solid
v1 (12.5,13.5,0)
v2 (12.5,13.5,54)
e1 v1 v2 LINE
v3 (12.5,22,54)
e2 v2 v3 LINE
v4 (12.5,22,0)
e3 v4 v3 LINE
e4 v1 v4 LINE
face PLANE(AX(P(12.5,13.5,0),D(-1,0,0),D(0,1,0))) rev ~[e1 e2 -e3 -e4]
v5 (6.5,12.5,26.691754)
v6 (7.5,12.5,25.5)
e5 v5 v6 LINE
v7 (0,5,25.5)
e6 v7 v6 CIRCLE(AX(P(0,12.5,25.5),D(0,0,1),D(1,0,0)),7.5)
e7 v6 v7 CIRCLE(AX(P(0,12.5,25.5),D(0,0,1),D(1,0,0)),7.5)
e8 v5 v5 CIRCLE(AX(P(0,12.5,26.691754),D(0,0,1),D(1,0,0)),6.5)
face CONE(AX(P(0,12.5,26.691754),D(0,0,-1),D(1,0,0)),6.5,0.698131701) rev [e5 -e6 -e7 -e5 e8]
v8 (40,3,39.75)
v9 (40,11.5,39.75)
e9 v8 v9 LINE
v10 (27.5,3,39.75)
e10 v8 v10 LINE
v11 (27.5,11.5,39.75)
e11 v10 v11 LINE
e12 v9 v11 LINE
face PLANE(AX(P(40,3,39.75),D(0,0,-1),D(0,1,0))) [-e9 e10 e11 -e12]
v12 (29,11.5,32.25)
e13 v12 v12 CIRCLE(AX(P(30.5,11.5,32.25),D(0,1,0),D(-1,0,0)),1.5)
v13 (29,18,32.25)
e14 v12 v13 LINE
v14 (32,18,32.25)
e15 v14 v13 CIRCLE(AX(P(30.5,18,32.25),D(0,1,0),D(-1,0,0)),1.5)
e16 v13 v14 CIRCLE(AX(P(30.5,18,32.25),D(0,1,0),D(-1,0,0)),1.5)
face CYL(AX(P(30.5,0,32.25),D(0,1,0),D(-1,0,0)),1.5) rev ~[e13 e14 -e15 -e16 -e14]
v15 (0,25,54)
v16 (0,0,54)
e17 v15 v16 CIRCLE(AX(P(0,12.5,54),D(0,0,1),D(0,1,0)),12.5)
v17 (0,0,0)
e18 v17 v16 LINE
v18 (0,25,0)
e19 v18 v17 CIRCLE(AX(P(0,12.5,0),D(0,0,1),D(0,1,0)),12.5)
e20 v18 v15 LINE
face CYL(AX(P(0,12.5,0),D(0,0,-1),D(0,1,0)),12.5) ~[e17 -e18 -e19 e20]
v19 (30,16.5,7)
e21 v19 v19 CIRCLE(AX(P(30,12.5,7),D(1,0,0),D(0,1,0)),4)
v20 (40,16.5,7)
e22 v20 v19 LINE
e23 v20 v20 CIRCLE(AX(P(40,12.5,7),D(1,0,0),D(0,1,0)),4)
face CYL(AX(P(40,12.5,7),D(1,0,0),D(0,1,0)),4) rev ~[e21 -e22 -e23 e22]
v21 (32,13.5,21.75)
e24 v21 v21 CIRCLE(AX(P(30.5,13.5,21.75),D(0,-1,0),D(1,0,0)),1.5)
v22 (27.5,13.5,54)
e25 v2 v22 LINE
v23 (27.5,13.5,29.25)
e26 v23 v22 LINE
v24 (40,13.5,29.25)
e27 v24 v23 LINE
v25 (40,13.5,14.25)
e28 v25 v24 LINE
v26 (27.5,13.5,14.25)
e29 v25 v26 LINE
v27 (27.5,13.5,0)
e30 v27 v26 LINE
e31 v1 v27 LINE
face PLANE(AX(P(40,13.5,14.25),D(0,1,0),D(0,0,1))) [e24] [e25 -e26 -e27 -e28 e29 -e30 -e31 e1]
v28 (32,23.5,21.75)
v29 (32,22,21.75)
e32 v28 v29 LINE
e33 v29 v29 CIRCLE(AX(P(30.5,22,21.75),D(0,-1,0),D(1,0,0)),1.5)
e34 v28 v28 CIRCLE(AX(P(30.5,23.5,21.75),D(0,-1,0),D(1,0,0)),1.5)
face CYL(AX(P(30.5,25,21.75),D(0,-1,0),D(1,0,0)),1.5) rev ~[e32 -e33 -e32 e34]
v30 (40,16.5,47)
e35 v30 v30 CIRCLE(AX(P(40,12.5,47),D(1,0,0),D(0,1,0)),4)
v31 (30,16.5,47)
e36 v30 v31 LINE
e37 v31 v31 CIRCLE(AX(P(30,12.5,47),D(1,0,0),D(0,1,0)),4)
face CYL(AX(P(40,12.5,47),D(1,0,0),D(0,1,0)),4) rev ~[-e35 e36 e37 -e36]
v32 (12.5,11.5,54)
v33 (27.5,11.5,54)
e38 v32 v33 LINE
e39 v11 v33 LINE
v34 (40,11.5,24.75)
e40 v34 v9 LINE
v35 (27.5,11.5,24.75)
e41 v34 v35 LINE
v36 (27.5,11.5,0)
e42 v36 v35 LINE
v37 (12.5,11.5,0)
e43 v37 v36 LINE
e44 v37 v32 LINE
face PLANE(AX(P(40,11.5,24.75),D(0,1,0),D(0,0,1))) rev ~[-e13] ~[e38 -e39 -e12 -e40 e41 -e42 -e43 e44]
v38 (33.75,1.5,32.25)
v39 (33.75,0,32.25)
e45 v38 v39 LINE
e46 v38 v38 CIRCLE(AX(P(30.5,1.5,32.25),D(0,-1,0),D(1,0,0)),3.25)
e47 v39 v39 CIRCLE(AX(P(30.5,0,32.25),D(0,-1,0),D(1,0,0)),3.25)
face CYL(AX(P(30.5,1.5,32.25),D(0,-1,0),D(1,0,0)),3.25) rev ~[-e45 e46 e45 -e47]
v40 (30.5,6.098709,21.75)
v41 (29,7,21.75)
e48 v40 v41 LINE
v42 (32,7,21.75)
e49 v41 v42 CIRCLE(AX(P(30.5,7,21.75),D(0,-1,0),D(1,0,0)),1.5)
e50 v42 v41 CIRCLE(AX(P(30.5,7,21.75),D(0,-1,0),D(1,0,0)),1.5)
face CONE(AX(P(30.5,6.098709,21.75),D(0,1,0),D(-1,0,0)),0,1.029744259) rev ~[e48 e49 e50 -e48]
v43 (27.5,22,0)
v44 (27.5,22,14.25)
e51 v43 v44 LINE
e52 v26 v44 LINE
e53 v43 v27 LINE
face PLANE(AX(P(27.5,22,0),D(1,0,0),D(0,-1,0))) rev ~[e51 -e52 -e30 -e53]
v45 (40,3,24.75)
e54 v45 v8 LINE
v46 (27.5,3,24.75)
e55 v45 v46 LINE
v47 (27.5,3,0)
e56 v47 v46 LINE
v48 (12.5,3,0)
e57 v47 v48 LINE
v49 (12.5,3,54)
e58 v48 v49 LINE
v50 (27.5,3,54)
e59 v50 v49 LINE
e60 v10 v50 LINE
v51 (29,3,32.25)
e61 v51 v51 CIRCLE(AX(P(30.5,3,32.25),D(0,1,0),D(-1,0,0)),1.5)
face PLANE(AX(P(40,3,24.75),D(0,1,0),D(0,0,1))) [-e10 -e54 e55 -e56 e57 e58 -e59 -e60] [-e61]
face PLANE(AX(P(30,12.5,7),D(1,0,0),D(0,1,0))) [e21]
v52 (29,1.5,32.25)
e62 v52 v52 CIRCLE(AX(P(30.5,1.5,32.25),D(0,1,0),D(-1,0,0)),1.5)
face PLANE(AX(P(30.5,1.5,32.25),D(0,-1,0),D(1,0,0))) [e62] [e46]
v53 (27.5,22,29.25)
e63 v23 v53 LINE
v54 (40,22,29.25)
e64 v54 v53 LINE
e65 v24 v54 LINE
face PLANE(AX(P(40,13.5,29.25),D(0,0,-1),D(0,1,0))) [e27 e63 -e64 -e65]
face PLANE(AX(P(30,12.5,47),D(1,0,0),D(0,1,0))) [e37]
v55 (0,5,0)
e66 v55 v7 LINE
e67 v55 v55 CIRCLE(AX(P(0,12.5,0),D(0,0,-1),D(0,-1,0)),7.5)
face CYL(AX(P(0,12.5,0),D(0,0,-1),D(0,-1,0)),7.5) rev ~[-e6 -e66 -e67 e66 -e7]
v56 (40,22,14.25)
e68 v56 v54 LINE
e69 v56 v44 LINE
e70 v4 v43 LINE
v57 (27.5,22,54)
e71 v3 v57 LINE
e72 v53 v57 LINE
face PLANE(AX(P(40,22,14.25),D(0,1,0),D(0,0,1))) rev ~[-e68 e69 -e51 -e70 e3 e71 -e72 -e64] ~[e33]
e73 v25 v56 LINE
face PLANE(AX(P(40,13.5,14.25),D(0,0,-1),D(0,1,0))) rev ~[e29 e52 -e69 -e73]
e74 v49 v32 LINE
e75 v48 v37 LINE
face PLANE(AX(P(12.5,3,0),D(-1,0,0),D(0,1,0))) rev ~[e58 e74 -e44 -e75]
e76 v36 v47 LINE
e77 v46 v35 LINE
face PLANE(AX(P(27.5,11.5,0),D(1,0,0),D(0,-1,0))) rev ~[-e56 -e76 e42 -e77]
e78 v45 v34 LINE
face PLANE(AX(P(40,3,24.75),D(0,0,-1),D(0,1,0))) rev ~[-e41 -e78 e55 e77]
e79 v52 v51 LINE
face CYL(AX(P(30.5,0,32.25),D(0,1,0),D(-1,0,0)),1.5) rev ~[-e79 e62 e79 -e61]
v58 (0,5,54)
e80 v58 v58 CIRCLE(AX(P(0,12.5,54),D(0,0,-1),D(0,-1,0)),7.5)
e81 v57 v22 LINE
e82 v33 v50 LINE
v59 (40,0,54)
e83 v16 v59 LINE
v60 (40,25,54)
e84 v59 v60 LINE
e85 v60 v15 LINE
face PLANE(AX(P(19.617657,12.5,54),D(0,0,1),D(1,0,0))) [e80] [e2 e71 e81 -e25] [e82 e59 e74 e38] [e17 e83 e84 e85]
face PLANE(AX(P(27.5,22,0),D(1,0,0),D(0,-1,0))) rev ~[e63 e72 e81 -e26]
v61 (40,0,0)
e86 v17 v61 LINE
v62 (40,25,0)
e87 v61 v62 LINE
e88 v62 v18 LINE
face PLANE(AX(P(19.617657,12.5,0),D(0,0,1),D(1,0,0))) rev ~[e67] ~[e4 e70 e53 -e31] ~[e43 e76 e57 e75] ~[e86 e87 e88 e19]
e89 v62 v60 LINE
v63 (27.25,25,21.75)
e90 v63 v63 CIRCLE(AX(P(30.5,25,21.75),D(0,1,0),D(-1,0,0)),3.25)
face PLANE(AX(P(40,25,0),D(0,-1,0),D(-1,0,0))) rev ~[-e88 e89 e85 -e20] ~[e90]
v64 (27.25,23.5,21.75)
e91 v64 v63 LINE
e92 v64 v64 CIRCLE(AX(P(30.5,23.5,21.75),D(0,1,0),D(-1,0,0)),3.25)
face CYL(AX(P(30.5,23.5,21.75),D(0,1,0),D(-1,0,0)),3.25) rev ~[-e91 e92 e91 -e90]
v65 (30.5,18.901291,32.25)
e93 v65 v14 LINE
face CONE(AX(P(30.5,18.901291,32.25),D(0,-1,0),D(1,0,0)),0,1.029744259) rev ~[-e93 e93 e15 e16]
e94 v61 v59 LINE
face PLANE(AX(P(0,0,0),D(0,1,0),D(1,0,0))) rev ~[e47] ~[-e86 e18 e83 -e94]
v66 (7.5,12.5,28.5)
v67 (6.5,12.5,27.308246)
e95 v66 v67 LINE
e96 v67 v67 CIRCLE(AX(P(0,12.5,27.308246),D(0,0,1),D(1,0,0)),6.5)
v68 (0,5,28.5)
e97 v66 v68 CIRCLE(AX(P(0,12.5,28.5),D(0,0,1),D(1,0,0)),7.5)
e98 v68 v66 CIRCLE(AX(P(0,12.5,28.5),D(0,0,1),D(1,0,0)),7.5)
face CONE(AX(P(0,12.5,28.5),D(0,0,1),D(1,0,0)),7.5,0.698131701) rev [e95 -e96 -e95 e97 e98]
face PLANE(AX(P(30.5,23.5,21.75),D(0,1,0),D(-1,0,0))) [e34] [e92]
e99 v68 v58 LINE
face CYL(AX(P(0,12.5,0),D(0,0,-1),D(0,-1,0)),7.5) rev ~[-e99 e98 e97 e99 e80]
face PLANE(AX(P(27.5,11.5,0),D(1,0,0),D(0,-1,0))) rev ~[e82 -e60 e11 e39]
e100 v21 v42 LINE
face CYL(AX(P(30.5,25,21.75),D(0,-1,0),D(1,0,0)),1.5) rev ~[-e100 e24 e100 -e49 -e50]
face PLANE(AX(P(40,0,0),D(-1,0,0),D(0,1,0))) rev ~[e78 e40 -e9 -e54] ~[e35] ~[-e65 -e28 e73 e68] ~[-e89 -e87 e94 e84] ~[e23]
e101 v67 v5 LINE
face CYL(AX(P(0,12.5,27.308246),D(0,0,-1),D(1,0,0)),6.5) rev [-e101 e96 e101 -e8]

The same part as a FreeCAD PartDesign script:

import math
import FreeCAD as App
import Part
import Sketcher
from FreeCAD import Vector
Q = App.Units.Quantity

doc = App.newDocument("Part")
params = doc.addObject("Spreadsheet::Sheet", "Params")
for row, (alias, value) in enumerate([
    ("sketch1_diameter", "15 mm"),
    ("sketch1_radius", "12.5 mm"),
    ("sketch1_width", "40 mm"),
    ("sketch1_width2", "15 mm"),
    ("sketch1_height", "8.5 mm"),
    ("pad1_length", "54 mm"),
    ("sketch2_height", "15 mm"),
    ("sketch2_width", "8.5 mm"),
    ("pocket1_length", "12.5 mm"),
    ("sketch3_diameter", "3 mm"),
    ("hole_diameter", "3 mm"),
    ("hole_depth", "18 mm"),
    ("hole_cbore_diameter", "6.5 mm"),
    ("hole_cbore_depth", "1.5 mm"),
    ("sketch4_diameter", "3 mm"),
    ("hole2_diameter", "3 mm"),
    ("hole2_depth", "18 mm"),
    ("hole2_cbore_diameter", "6.5 mm"),
    ("hole2_cbore_depth", "1.5 mm"),
    ("sketch5_diameter", "8 mm"),
    ("pocket2_length", "10 mm"),
    ("sketch6_height", "3 mm"),
    ("revolution_angle", "360 deg"),
], start=1):
    params.set(f"A{row}", alias)
    params.set(f"B{row}", "=" + value)
    params.setAlias(f"B{row}", alias)

body = doc.addObject("PartDesign::Body", "Body")

sketch1 = body.newObject("Sketcher::SketchObject", "Sketch")
sketch1.AttachmentSupport = (doc.getObject("XY_Plane"), [""])
sketch1.MapMode = "FlatFace"
sketch1.addGeometry(Part.LineSegment(Vector(0, 0, 0), Vector(40, 0, 0)), False)
sketch1.addGeometry(Part.LineSegment(Vector(40, 0, 0), Vector(40, 25, 0)), False)
sketch1.addGeometry(Part.LineSegment(Vector(40, 25, 0), Vector(0, 25, 0)), False)
sketch1.addGeometry(Part.ArcOfCircle(Part.Circle(Vector(0, 12, 0), Vector(0, 0, 1), 12), math.radians(90), math.radians(270)), False)
sketch1.addGeometry(Part.Circle(Vector(0, 12, 0), Vector(0, 0, 1), 8), False)
sketch1.addGeometry(Part.LineSegment(Vector(12, 3, 0), Vector(12, 12, 0)), False)
sketch1.addGeometry(Part.LineSegment(Vector(12, 12, 0), Vector(28, 12, 0)), False)
sketch1.addGeometry(Part.LineSegment(Vector(28, 12, 0), Vector(28, 3, 0)), False)
sketch1.addGeometry(Part.LineSegment(Vector(28, 3, 0), Vector(12, 3, 0)), False)
sketch1.addGeometry(Part.LineSegment(Vector(12, 14, 0), Vector(12, 22, 0)), False)
sketch1.addGeometry(Part.LineSegment(Vector(12, 22, 0), Vector(28, 22, 0)), False)
sketch1.addGeometry(Part.LineSegment(Vector(28, 22, 0), Vector(28, 14, 0)), False)
sketch1.addGeometry(Part.LineSegment(Vector(28, 14, 0), Vector(12, 14, 0)), False)
sketch1.addConstraint(Sketcher.Constraint("Coincident", 0, 2, 1, 1))
sketch1.addConstraint(Sketcher.Constraint("Coincident", 1, 2, 2, 1))
sketch1.addConstraint(Sketcher.Constraint("Tangent", 2, 2, 3, 1))
sketch1.addConstraint(Sketcher.Constraint("Tangent", 3, 2, 0, 1))
sketch1.addConstraint(Sketcher.Constraint("Coincident", 5, 2, 6, 1))
sketch1.addConstraint(Sketcher.Constraint("Coincident", 6, 2, 7, 1))
sketch1.addConstraint(Sketcher.Constraint("Coincident", 7, 2, 8, 1))
sketch1.addConstraint(Sketcher.Constraint("Coincident", 8, 2, 5, 1))
sketch1.addConstraint(Sketcher.Constraint("Coincident", 9, 2, 10, 1))
sketch1.addConstraint(Sketcher.Constraint("Coincident", 10, 2, 11, 1))
sketch1.addConstraint(Sketcher.Constraint("Coincident", 11, 2, 12, 1))
sketch1.addConstraint(Sketcher.Constraint("Coincident", 12, 2, 9, 1))
sketch1.addConstraint(Sketcher.Constraint("Horizontal", 0))
sketch1.addConstraint(Sketcher.Constraint("Vertical", 1))
sketch1.addConstraint(Sketcher.Constraint("Horizontal", 2))
sketch1.addConstraint(Sketcher.Constraint("Vertical", 5))
sketch1.addConstraint(Sketcher.Constraint("Horizontal", 6))
sketch1.addConstraint(Sketcher.Constraint("Vertical", 7))
sketch1.addConstraint(Sketcher.Constraint("Horizontal", 8))
sketch1.addConstraint(Sketcher.Constraint("Vertical", 9))
sketch1.addConstraint(Sketcher.Constraint("Horizontal", 10))
sketch1.addConstraint(Sketcher.Constraint("Vertical", 11))
sketch1.addConstraint(Sketcher.Constraint("Horizontal", 12))
sketch1.addConstraint(Sketcher.Constraint("Coincident", 3, 2, -1, 1))
sketch1.addConstraint(Sketcher.Constraint("Coincident", 4, 3, 3, 3))
sketch1.addConstraint(Sketcher.Constraint("Vertical", 8, 2, 9, 2))
sketch1.addConstraint(Sketcher.Constraint("Vertical", 7, 2, 10, 2))
sketch1.addConstraint(Sketcher.Constraint("Equal", 7, 9))
sketch1.addConstraint(Sketcher.Constraint("Diameter", 4, Q("15 mm")))
sketch1.addConstraint(Sketcher.Constraint("Radius", 3, Q("12.5 mm")))
sketch1.addConstraint(Sketcher.Constraint("DistanceX", 0, 1, 0, 2, Q("40 mm")))
sketch1.addConstraint(Sketcher.Constraint("DistanceX", 6, 1, 6, 2, Q("15 mm")))
sketch1.addConstraint(Sketcher.Constraint("DistanceY", 5, 1, 5, 2, Q("8.5 mm")))
sketch1.addConstraint(Sketcher.Constraint("DistanceY", -1, 1, 7, 2, Q("3 mm")))
sketch1.addConstraint(Sketcher.Constraint("DistanceY", -1, 1, 9, 2, Q("22 mm")))
sketch1.addConstraint(Sketcher.Constraint("DistanceX", -1, 1, 5, 2, Q("12.5 mm")))
sketch1.setExpression("Constraints[28]", "Params.sketch1_diameter")
sketch1.setExpression("Constraints[29]", "Params.sketch1_radius")
sketch1.setExpression("Constraints[30]", "Params.sketch1_width")
sketch1.setExpression("Constraints[31]", "Params.sketch1_width2")
sketch1.setExpression("Constraints[32]", "Params.sketch1_height")
pad1 = body.newObject("PartDesign::Pad", "Pad")
pad1.Profile = sketch1
pad1.setExpression("Length", "Params.pad1_length")

sketch2 = body.newObject("Sketcher::SketchObject", "Sketch001")
sketch2.AttachmentSupport = (doc.getObject("YZ_Plane"), [""])
sketch2.MapMode = "FlatFace"
sketch2.AttachmentOffset = App.Placement(Vector(0, 0, 40), App.Rotation())
sketch2.addGeometry(Part.LineSegment(Vector(3, 40, 0), Vector(3, 25, 0)), False)
sketch2.addGeometry(Part.LineSegment(Vector(3, 25, 0), Vector(12, 25, 0)), False)
sketch2.addGeometry(Part.LineSegment(Vector(12, 25, 0), Vector(12, 40, 0)), False)
sketch2.addGeometry(Part.LineSegment(Vector(12, 40, 0), Vector(3, 40, 0)), False)
sketch2.addGeometry(Part.LineSegment(Vector(14, 29, 0), Vector(14, 14, 0)), False)
sketch2.addGeometry(Part.LineSegment(Vector(14, 14, 0), Vector(22, 14, 0)), False)
sketch2.addGeometry(Part.LineSegment(Vector(22, 14, 0), Vector(22, 29, 0)), False)
sketch2.addGeometry(Part.LineSegment(Vector(22, 29, 0), Vector(14, 29, 0)), False)
sketch2.addConstraint(Sketcher.Constraint("Coincident", 0, 2, 1, 1))
sketch2.addConstraint(Sketcher.Constraint("Coincident", 1, 2, 2, 1))
sketch2.addConstraint(Sketcher.Constraint("Coincident", 2, 2, 3, 1))
sketch2.addConstraint(Sketcher.Constraint("Coincident", 3, 2, 0, 1))
sketch2.addConstraint(Sketcher.Constraint("Coincident", 4, 2, 5, 1))
sketch2.addConstraint(Sketcher.Constraint("Coincident", 5, 2, 6, 1))
sketch2.addConstraint(Sketcher.Constraint("Coincident", 6, 2, 7, 1))
sketch2.addConstraint(Sketcher.Constraint("Coincident", 7, 2, 4, 1))
sketch2.addConstraint(Sketcher.Constraint("Vertical", 0))
sketch2.addConstraint(Sketcher.Constraint("Horizontal", 1))
sketch2.addConstraint(Sketcher.Constraint("Vertical", 2))
sketch2.addConstraint(Sketcher.Constraint("Horizontal", 3))
sketch2.addConstraint(Sketcher.Constraint("Vertical", 4))
sketch2.addConstraint(Sketcher.Constraint("Horizontal", 5))
sketch2.addConstraint(Sketcher.Constraint("Vertical", 6))
sketch2.addConstraint(Sketcher.Constraint("Horizontal", 7))
sketch2.addConstraint(Sketcher.Constraint("Equal", 3, 5))
sketch2.addConstraint(Sketcher.Constraint("Equal", 2, 4))
sketch2.addConstraint(Sketcher.Constraint("DistanceY", 0, 2, 0, 1, Q("15 mm")))
sketch2.addConstraint(Sketcher.Constraint("DistanceX", 1, 1, 1, 2, Q("8.5 mm")))
sketch2.addConstraint(Sketcher.Constraint("DistanceX", -1, 1, 0, 2, Q("3 mm")))
sketch2.addConstraint(Sketcher.Constraint("DistanceX", -1, 1, 5, 2, Q("22 mm")))
sketch2.addConstraint(Sketcher.Constraint("DistanceY", 4, 2, 1, 2, Q("10.5 mm")))
sketch2.addConstraint(Sketcher.Constraint("DistanceY", -1, 1, 0, 2, Q("24.75 mm")))
sketch2.setExpression("Constraints[18]", "Params.sketch2_height")
sketch2.setExpression("Constraints[19]", "Params.sketch2_width")
pocket1 = body.newObject("PartDesign::Pocket", "Pocket")
pocket1.Profile = sketch2
pocket1.setExpression("Length", "Params.pocket1_length")

sketch3 = body.newObject("Sketcher::SketchObject", "Sketch002")
sketch3.AttachmentSupport = (doc.getObject("XZ_Plane"), [""])
sketch3.MapMode = "FlatFace"
sketch3.addGeometry(Part.Circle(Vector(30.5, 32.2, 0), Vector(0, 0, 1), 1.5), False)
sketch3.addConstraint(Sketcher.Constraint("Diameter", 0, Q("3 mm")))
sketch3.addConstraint(Sketcher.Constraint("DistanceX", -1, 1, 0, 3, Q("30.5 mm")))
sketch3.addConstraint(Sketcher.Constraint("DistanceY", -1, 1, 0, 3, Q("32.25 mm")))
sketch3.setExpression("Constraints[0]", "Params.sketch3_diameter")
doc.recompute()
hole = body.newObject("PartDesign::Hole", "Hole")
hole.Profile = sketch3
hole.ThreadType = "None"
hole.setExpression("Diameter", "Params.hole_diameter")
hole.DepthType = "Dimension"
hole.setExpression("Depth", "Params.hole_depth")
hole.DrillPoint = "Angled"
hole.DrillPointAngle = 118
hole.HoleCutType = "Counterbore"
hole.setExpression("HoleCutDiameter", "Params.hole_cbore_diameter")
hole.setExpression("HoleCutDepth", "Params.hole_cbore_depth")

sketch4 = body.newObject("Sketcher::SketchObject", "Sketch003")
sketch4.AttachmentSupport = (doc.getObject("XZ_Plane"), [""])
sketch4.MapMode = "FlatFace"
sketch4.AttachmentOffset = App.Placement(Vector(0, 0, -25), App.Rotation())
sketch4.addGeometry(Part.Circle(Vector(30.5, 21.8, 0), Vector(0, 0, 1), 1.5), False)
sketch4.addConstraint(Sketcher.Constraint("Diameter", 0, Q("3 mm")))
sketch4.addConstraint(Sketcher.Constraint("DistanceX", -1, 1, 0, 3, Q("30.5 mm")))
sketch4.addConstraint(Sketcher.Constraint("DistanceY", -1, 1, 0, 3, Q("21.75 mm")))
sketch4.setExpression("Constraints[0]", "Params.sketch4_diameter")
doc.recompute()
hole2 = body.newObject("PartDesign::Hole", "Hole001")
hole2.Profile = sketch4
hole2.ThreadType = "None"
hole2.setExpression("Diameter", "Params.hole2_diameter")
hole2.DepthType = "Dimension"
hole2.setExpression("Depth", "Params.hole2_depth")
hole2.DrillPoint = "Angled"
hole2.DrillPointAngle = 118
hole2.HoleCutType = "Counterbore"
hole2.setExpression("HoleCutDiameter", "Params.hole2_cbore_diameter")
hole2.setExpression("HoleCutDepth", "Params.hole2_cbore_depth")
hole2.Reversed = True

sketch5 = body.newObject("Sketcher::SketchObject", "Sketch004")
sketch5.AttachmentSupport = (doc.getObject("YZ_Plane"), [""])
sketch5.MapMode = "FlatFace"
sketch5.AttachmentOffset = App.Placement(Vector(0, 0, 40), App.Rotation())
sketch5.addGeometry(Part.Circle(Vector(12.5, 47, 0), Vector(0, 0, 1), 4), False)
sketch5.addGeometry(Part.Circle(Vector(12.5, 7, 0), Vector(0, 0, 1), 4), False)
sketch5.addConstraint(Sketcher.Constraint("Equal", 0, 1))
sketch5.addConstraint(Sketcher.Constraint("Vertical", 0, 3, 1, 3))
sketch5.addConstraint(Sketcher.Constraint("Diameter", 0, Q("8 mm")))
sketch5.addConstraint(Sketcher.Constraint("DistanceY", -1, 1, 0, 3, Q("47 mm")))
sketch5.addConstraint(Sketcher.Constraint("DistanceY", -1, 1, 1, 3, Q("7 mm")))
sketch5.addConstraint(Sketcher.Constraint("DistanceX", -1, 1, 0, 3, Q("12.5 mm")))
sketch5.setExpression("Constraints[2]", "Params.sketch5_diameter")
pocket2 = body.newObject("PartDesign::Pocket", "Pocket001")
pocket2.Profile = sketch5
pocket2.setExpression("Length", "Params.pocket2_length")

sketch6 = body.newObject("Sketcher::SketchObject", "Sketch005")
sketch6.AttachmentSupport = (doc.getObject("XZ_Plane"), [""])
sketch6.MapMode = "FlatFace"
sketch6.AttachmentOffset = App.Placement(Vector(0, 0, -12.5), App.Rotation())
sketch6.addGeometry(Part.LineSegment(Vector(6.5, 26.7, 0), Vector(7.5, 25.5, 0)), False)
sketch6.addGeometry(Part.LineSegment(Vector(7.5, 25.5, 0), Vector(7.5, 28.5, 0)), False)
sketch6.addGeometry(Part.LineSegment(Vector(7.5, 28.5, 0), Vector(6.5, 27.3, 0)), False)
sketch6.addGeometry(Part.LineSegment(Vector(6.5, 27.3, 0), Vector(6.5, 26.7, 0)), False)
sketch6.addConstraint(Sketcher.Constraint("Coincident", 0, 2, 1, 1))
sketch6.addConstraint(Sketcher.Constraint("Coincident", 1, 2, 2, 1))
sketch6.addConstraint(Sketcher.Constraint("Coincident", 2, 2, 3, 1))
sketch6.addConstraint(Sketcher.Constraint("Coincident", 3, 2, 0, 1))
sketch6.addConstraint(Sketcher.Constraint("Vertical", 1))
sketch6.addConstraint(Sketcher.Constraint("Vertical", 3))
sketch6.addConstraint(Sketcher.Constraint("Equal", 0, 2))
sketch6.addConstraint(Sketcher.Constraint("DistanceY", 1, 1, 1, 2, Q("3 mm")))
sketch6.addConstraint(Sketcher.Constraint("Angle", 0, Q("-50 deg")))
sketch6.addConstraint(Sketcher.Constraint("DistanceX", 2, 2, 1, 2, Q("1 mm")))
sketch6.addConstraint(Sketcher.Constraint("DistanceX", -1, 1, 0, 2, Q("7.5 mm")))
sketch6.addConstraint(Sketcher.Constraint("DistanceY", -1, 1, 0, 2, Q("25.5 mm")))
sketch6.setExpression("Constraints[7]", "Params.sketch6_height")
revolution = body.newObject("PartDesign::Revolution", "Revolution")
revolution.Profile = sketch6
revolution.ReferenceAxis = (sketch6, ["V_Axis"])
revolution.setExpression("Angle", "Params.revolution_angle")

doc.recompute()
